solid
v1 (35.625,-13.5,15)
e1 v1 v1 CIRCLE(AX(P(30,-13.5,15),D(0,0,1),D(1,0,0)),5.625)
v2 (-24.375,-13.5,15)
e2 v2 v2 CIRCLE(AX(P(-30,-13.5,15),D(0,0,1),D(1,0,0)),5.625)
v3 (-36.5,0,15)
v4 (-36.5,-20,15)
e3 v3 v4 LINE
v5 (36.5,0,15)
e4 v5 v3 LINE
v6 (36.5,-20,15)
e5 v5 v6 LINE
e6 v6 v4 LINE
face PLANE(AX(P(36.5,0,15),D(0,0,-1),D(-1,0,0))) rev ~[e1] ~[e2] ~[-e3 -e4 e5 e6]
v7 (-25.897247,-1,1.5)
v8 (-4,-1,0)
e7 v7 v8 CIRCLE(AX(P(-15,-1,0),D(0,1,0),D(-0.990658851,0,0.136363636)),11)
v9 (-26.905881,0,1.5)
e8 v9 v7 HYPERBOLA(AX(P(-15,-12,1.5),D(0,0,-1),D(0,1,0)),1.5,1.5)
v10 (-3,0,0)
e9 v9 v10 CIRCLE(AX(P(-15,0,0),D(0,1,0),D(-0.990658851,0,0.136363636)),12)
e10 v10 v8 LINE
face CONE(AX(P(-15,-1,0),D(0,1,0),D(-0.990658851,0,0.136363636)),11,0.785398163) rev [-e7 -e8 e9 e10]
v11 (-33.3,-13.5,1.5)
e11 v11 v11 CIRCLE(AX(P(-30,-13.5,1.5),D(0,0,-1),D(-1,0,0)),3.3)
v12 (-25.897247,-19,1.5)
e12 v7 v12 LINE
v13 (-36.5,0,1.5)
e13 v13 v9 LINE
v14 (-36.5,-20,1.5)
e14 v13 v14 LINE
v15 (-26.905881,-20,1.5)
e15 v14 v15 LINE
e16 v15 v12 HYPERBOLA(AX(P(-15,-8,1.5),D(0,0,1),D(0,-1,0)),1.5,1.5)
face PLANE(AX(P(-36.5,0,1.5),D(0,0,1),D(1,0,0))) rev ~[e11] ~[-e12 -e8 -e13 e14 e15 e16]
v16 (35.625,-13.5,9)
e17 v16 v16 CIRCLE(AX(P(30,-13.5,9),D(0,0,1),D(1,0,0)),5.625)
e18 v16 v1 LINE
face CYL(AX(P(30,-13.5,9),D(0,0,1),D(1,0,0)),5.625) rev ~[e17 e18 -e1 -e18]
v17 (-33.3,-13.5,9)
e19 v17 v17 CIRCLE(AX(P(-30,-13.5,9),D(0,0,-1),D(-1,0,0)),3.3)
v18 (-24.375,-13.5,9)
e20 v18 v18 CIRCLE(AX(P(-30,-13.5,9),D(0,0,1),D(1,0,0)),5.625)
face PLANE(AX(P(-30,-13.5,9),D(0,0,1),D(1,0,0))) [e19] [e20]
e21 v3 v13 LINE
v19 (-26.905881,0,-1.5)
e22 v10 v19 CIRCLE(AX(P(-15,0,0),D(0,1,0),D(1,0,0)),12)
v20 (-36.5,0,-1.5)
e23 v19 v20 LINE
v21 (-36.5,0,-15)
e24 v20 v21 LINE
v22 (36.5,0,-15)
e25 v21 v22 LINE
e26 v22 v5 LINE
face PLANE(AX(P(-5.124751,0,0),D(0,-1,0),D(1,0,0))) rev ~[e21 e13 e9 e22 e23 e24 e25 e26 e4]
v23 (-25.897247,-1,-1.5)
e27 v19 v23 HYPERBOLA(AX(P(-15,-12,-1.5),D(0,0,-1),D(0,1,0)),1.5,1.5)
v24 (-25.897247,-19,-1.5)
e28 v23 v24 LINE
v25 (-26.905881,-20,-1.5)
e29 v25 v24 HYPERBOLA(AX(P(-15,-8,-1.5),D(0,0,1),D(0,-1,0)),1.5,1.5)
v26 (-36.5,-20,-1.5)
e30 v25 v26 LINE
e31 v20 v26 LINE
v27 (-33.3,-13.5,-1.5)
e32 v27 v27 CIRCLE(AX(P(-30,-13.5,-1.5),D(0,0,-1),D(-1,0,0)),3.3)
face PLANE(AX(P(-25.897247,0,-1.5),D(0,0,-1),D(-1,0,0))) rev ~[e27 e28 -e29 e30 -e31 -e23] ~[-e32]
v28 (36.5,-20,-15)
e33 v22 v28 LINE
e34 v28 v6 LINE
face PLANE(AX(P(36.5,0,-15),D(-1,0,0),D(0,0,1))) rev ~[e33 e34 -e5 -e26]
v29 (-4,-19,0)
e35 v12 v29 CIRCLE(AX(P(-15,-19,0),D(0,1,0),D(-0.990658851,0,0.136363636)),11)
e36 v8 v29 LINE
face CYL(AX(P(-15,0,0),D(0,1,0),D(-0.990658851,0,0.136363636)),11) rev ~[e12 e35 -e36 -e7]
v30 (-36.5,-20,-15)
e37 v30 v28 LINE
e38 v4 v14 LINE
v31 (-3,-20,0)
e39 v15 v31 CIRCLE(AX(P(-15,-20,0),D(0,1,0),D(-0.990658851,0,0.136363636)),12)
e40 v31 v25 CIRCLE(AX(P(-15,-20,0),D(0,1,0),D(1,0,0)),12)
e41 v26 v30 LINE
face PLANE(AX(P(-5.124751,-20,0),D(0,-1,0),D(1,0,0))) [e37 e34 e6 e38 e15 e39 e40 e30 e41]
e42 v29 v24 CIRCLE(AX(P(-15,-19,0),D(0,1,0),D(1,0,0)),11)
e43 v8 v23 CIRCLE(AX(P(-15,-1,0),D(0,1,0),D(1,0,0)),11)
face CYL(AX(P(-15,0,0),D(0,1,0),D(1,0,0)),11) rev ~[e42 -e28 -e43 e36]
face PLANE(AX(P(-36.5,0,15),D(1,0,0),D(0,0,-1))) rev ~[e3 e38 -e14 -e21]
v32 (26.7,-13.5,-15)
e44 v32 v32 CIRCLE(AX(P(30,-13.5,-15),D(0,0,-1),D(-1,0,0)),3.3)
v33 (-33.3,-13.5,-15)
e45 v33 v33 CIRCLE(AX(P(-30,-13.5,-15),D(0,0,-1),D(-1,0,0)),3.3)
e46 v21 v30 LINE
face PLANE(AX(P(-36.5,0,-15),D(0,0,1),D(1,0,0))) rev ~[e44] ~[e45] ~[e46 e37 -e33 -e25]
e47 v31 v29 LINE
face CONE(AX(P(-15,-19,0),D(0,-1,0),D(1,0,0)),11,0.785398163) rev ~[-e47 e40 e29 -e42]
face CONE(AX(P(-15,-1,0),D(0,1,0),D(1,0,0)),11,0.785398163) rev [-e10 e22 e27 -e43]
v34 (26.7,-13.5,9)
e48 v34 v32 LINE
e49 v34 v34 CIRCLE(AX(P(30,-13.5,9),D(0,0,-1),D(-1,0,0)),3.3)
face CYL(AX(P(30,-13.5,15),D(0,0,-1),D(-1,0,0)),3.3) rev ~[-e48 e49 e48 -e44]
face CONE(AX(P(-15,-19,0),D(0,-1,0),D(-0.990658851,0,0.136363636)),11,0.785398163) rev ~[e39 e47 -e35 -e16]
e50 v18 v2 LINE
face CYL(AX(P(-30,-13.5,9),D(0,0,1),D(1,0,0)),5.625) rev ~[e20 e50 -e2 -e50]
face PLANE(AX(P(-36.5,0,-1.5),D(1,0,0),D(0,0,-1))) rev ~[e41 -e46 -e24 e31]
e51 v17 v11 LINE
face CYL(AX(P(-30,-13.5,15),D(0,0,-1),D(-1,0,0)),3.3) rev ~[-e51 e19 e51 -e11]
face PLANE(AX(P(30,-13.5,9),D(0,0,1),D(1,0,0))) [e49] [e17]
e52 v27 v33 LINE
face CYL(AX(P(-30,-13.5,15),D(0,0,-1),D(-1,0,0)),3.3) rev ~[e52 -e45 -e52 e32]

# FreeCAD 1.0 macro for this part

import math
import FreeCAD as App
import Part
import Sketcher

V = App.Vector
Q = App.Units.Quantity


def edges_at(feature, points):
    """Names of the edges that pass closest to the given points."""
    edges = feature.Shape.Edges
    near = lambda p: min(range(len(edges)), key=lambda i: edges[i].distToShape(Part.Vertex(*p))[0])
    return sorted({f"Edge{near(p) + 1}" for p in points})

doc = App.newDocument("Part")
body = doc.addObject("PartDesign::Body", "Body")

sketch1 = body.newObject("Sketcher::SketchObject", "Sketch")
sketch1.AttachmentSupport = (doc.getObject("XZ_Plane"), [""])
sketch1.MapMode = "FlatFace"
sketch1.addGeometry([
    Part.LineSegment(V(36, 15, 0), V(-36, 15, 0)),
    Part.LineSegment(V(-36, 15, 0), V(-36, 2, 0)),
    Part.LineSegment(V(-36, 2, 0), V(-26, 2, 0)),
    Part.ArcOfCircle(Part.Circle(V(-15, 0, 0), V(0, 0, 1), 11), math.radians(0), math.radians(172)),
    Part.ArcOfCircle(Part.Circle(V(-15, 0, 0), V(0, 0, 1), 11), math.radians(-172), math.radians(0)),
    Part.LineSegment(V(-26, -2, 0), V(-36, -2, 0)),
    Part.LineSegment(V(-36, -2, 0), V(-36, -15, 0)),
    Part.LineSegment(V(-36, -15, 0), V(36, -15, 0)),
    Part.LineSegment(V(36, -15, 0), V(36, 15, 0)),
], False)
sketch1.addConstraint([
    Sketcher.Constraint("Coincident", 0, 2, 1, 1),
    Sketcher.Constraint("Coincident", 1, 2, 2, 1),
    Sketcher.Constraint("Coincident", 2, 2, 3, 2),
    Sketcher.Constraint("Tangent", 3, 1, 4, 2),
    Sketcher.Constraint("Coincident", 4, 1, 5, 1),
    Sketcher.Constraint("Coincident", 5, 2, 6, 1),
    Sketcher.Constraint("Coincident", 6, 2, 7, 1),
    Sketcher.Constraint("Coincident", 7, 2, 8, 1),
    Sketcher.Constraint("Coincident", 8, 2, 0, 1),
    Sketcher.Constraint("Horizontal", 0),
    Sketcher.Constraint("Vertical", 1),
    Sketcher.Constraint("Horizontal", 2),
    Sketcher.Constraint("Horizontal", 5),
    Sketcher.Constraint("Vertical", 6),
    Sketcher.Constraint("Horizontal", 7),
    Sketcher.Constraint("Vertical", 8),
    Sketcher.Constraint("Equal", 3, 4),
    Sketcher.Constraint("Symmetric", 0, 2, 7, 2, -1, 1),
    Sketcher.Constraint("Symmetric", 2, 2, 4, 1, -1),
    Sketcher.Constraint("PointOnObject", 3, 1, -1),
    Sketcher.Constraint("Vertical", 1, 2, 5, 2),
    Sketcher.Constraint("Radius", 3, Q("11 mm")),
    Sketcher.Constraint("DistanceX", 0, 2, 0, 1, Q("73 mm")),
    Sketcher.Constraint("DistanceY", 8, 1, 8, 2, Q("30 mm")),
    Sketcher.Constraint("DistanceY", 1, 2, 1, 1, Q("13.5 mm")),
    Sketcher.Constraint("DistanceX", 3, 3, -1, 1, Q("15 mm")),
])
pad1 = body.newObject("PartDesign::Pad", "Pad")
pad1.Profile = sketch1
pad1.Length = 20

sketch2 = body.newObject("Sketcher::SketchObject", "Sketch001")
sketch2.AttachmentSupport = (doc.getObject("XY_Plane"), [""])
sketch2.MapMode = "FlatFace"
sketch2.AttachmentOffset = App.Placement(V(0, 0, 15), App.Rotation())
sketch2.addGeometry([
    Part.Circle(V(-30, -13.5, 0), V(0, 0, 1), 3.3),
    Part.Circle(V(30, -13.5, 0), V(0, 0, 1), 3.3),
], False)
sketch2.addConstraint([
    Sketcher.Constraint("Equal", 0, 1),
    Sketcher.Constraint("Symmetric", 0, 3, 1, 3, -2),
    Sketcher.Constraint("Diameter", 0, Q("6.6 mm")),
    Sketcher.Constraint("DistanceX", 0, 3, -1, 1, Q("30 mm")),
    Sketcher.Constraint("DistanceY", 0, 3, -1, 1, Q("13.5 mm")),
])
doc.recompute()
hole = body.newObject("PartDesign::Hole", "Hole")
hole.Profile = sketch2
hole.ThreadType = "None"
hole.Diameter = 6.6
hole.DepthType = "ThroughAll"
hole.HoleCutType = "Counterbore"
hole.HoleCutDiameter = 11.25
hole.HoleCutDepth = 6
doc.recompute()

chamfer = body.newObject("PartDesign::Chamfer", "Chamfer")
chamfer.Base = (hole, edges_at(hole, [(-14.248, -20, 10.974), (-14.248, 0, 10.974)]))
chamfer.Size = 1

doc.recompute()
